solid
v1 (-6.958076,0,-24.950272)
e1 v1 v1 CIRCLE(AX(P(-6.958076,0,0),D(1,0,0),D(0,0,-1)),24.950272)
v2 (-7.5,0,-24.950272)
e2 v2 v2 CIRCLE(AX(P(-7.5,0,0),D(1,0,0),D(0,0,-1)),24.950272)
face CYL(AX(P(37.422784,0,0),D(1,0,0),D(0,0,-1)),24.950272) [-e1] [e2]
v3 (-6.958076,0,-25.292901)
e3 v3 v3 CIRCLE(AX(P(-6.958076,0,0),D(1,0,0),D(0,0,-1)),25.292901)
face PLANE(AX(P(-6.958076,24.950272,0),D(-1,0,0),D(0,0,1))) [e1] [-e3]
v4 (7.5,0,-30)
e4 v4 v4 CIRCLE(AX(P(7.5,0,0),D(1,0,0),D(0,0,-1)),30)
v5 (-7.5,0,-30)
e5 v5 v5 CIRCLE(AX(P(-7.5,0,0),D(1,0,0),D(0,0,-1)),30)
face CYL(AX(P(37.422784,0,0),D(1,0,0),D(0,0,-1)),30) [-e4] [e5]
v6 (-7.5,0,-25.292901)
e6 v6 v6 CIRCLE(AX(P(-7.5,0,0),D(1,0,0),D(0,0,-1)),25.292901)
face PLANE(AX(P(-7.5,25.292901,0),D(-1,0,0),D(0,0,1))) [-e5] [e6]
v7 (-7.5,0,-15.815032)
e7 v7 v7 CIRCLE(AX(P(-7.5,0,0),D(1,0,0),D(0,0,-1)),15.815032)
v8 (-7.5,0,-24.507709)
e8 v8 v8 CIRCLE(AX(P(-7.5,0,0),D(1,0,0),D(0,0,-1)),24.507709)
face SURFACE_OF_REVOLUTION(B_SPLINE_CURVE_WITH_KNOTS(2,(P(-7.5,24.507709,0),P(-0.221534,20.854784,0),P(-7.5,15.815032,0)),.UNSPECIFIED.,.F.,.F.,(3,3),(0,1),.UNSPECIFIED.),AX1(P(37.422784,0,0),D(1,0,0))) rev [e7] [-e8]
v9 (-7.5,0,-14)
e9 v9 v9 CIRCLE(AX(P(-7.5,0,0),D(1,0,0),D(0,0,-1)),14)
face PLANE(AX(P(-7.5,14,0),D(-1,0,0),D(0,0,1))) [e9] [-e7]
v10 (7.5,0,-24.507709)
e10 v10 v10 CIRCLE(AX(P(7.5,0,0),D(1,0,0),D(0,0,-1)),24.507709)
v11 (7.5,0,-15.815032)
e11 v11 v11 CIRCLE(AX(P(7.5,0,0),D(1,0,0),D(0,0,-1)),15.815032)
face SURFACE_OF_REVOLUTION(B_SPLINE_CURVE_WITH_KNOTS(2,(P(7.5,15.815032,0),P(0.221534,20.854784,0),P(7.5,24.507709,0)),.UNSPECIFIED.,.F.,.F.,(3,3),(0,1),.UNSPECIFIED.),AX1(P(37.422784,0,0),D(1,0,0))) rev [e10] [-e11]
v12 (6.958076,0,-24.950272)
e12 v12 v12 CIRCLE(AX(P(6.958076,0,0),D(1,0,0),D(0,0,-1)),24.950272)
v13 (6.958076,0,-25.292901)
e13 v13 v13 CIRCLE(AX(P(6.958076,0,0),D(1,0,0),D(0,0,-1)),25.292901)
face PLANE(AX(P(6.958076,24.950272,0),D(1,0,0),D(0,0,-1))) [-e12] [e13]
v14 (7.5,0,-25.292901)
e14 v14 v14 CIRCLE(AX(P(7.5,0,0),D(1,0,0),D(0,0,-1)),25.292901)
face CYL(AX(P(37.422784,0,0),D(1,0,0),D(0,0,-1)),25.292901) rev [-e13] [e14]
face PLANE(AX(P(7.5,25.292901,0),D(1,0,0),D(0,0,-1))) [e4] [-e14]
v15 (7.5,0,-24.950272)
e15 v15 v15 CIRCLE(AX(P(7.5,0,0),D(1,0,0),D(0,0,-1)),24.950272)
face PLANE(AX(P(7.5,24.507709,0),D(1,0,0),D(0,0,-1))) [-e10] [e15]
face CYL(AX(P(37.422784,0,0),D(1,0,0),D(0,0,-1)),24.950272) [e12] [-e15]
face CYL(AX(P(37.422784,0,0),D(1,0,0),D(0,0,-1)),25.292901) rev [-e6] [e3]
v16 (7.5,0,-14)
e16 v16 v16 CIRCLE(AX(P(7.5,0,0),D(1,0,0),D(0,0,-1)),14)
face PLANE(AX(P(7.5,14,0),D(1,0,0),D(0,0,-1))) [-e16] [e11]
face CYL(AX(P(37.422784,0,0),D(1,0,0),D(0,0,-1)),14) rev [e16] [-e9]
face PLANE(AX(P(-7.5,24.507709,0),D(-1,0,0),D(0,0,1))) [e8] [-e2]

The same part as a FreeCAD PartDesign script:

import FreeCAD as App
import Part
import Sketcher

doc = App.newDocument("Part")
body = doc.addObject("PartDesign::Body", "Body")

# Sketch on XY plane
sketch1 = body.newObject("Sketcher::SketchObject", "Sketch")
sketch1.AttachmentSupport = (doc.getObject("XY_Plane"), [""])
sketch1.MapMode = "FlatFace"
sketch1.addGeometry([
    Part.LineSegment(App.Vector(-7.5, 14, 0), App.Vector(7.5, 14, 0)),  # 0
    Part.LineSegment(App.Vector(7.5, 14, 0), App.Vector(7.5, 15.815032, 0)),  # 1
    Part.BSplineCurve([App.Vector(7.5, 15.815032, 0), App.Vector(0.221534, 20.854784, 0), App.Vector(7.5, 24.507709, 0)], [3, 3], [0, 1], False, 2, [1, 1, 1], False),  # 2
    Part.LineSegment(App.Vector(7.5, 24.507709, 0), App.Vector(7.5, 24.950272, 0)),  # 3
    Part.LineSegment(App.Vector(7.5, 24.950272, 0), App.Vector(6.958076, 24.950272, 0)),  # 4
    Part.LineSegment(App.Vector(6.958076, 24.950272, 0), App.Vector(6.958076, 25.292901, 0)),  # 5
    Part.LineSegment(App.Vector(6.958076, 25.292901, 0), App.Vector(7.5, 25.292901, 0)),  # 6
    Part.LineSegment(App.Vector(7.5, 25.292901, 0), App.Vector(7.5, 30, 0)),  # 7
    Part.LineSegment(App.Vector(7.5, 30, 0), App.Vector(-7.5, 30, 0)),  # 8
    Part.LineSegment(App.Vector(-7.5, 30, 0), App.Vector(-7.5, 25.292901, 0)),  # 9
    Part.LineSegment(App.Vector(-7.5, 25.292901, 0), App.Vector(-6.958076, 25.292901, 0)),  # 10
    Part.LineSegment(App.Vector(-6.958076, 25.292901, 0), App.Vector(-6.958076, 24.950272, 0)),  # 11
    Part.LineSegment(App.Vector(-6.958076, 24.950272, 0), App.Vector(-7.5, 24.950272, 0)),  # 12
    Part.LineSegment(App.Vector(-7.5, 24.950272, 0), App.Vector(-7.5, 24.507709, 0)),  # 13
    Part.BSplineCurve([App.Vector(-7.5, 15.815032, 0), App.Vector(-0.221534, 20.854784, 0), App.Vector(-7.5, 24.507709, 0)], [3, 3], [0, 1], False, 2, [1, 1, 1], False),  # 14
    Part.LineSegment(App.Vector(-7.5, 15.815032, 0), App.Vector(-7.5, 14, 0)),  # 15
], False)
sketch1.addConstraint([
    Sketcher.Constraint("Block", 2),
    Sketcher.Constraint("Block", 14),
    Sketcher.Constraint("Coincident", 0, 2, 1, 1),
    Sketcher.Constraint("Coincident", 1, 2, 2, 1),
    Sketcher.Constraint("Coincident", 2, 2, 3, 1),
    Sketcher.Constraint("Coincident", 3, 2, 4, 1),
    Sketcher.Constraint("Coincident", 4, 2, 5, 1),
    Sketcher.Constraint("Coincident", 5, 2, 6, 1),
    Sketcher.Constraint("Coincident", 6, 2, 7, 1),
    Sketcher.Constraint("Coincident", 7, 2, 8, 1),
    Sketcher.Constraint("Coincident", 8, 2, 9, 1),
    Sketcher.Constraint("Coincident", 9, 2, 10, 1),
    Sketcher.Constraint("Coincident", 10, 2, 11, 1),
    Sketcher.Constraint("Coincident", 11, 2, 12, 1),
    Sketcher.Constraint("Coincident", 12, 2, 13, 1),
    Sketcher.Constraint("Coincident", 13, 2, 14, 2),
    Sketcher.Constraint("Coincident", 14, 1, 15, 1),
    Sketcher.Constraint("Coincident", 15, 2, 0, 1),
    Sketcher.Constraint("Horizontal", 0),
    Sketcher.Constraint("Vertical", 1),
    Sketcher.Constraint("Vertical", 3),
    Sketcher.Constraint("Horizontal", 4),
    Sketcher.Constraint("Vertical", 5),
    Sketcher.Constraint("Horizontal", 6),
    Sketcher.Constraint("Vertical", 7),
    Sketcher.Constraint("Horizontal", 8),
    Sketcher.Constraint("Vertical", 9),
    Sketcher.Constraint("Horizontal", 10),
    Sketcher.Constraint("Vertical", 11),
    Sketcher.Constraint("Horizontal", 12),
    Sketcher.Constraint("Vertical", 13),
    Sketcher.Constraint("Vertical", 15),
    Sketcher.Constraint("Symmetric", 6, 2, 9, 2, -2),
    Sketcher.Constraint("Symmetric", 4, 2, 11, 2, -2),
    Sketcher.Constraint("Vertical", 3, 2, 6, 2),
    Sketcher.Constraint("DistanceY", -1, 1, 0, 2, 14.0),
    Sketcher.Constraint("DistanceY", -1, 1, 7, 2, 30.0),
    Sketcher.Constraint("DistanceY", 7, 1, 7, 2, 4.707099),
    Sketcher.Constraint("DistanceY", 5, 1, 5, 2, 0.342629),
    Sketcher.Constraint("DistanceX", 4, 2, 4, 1, 0.541924),
])
revolution = body.newObject("PartDesign::Revolution", "Revolution")
revolution.Profile = sketch1
revolution.ReferenceAxis = (sketch1, ["H_Axis"])
revolution.Angle = 360

doc.recompute()
